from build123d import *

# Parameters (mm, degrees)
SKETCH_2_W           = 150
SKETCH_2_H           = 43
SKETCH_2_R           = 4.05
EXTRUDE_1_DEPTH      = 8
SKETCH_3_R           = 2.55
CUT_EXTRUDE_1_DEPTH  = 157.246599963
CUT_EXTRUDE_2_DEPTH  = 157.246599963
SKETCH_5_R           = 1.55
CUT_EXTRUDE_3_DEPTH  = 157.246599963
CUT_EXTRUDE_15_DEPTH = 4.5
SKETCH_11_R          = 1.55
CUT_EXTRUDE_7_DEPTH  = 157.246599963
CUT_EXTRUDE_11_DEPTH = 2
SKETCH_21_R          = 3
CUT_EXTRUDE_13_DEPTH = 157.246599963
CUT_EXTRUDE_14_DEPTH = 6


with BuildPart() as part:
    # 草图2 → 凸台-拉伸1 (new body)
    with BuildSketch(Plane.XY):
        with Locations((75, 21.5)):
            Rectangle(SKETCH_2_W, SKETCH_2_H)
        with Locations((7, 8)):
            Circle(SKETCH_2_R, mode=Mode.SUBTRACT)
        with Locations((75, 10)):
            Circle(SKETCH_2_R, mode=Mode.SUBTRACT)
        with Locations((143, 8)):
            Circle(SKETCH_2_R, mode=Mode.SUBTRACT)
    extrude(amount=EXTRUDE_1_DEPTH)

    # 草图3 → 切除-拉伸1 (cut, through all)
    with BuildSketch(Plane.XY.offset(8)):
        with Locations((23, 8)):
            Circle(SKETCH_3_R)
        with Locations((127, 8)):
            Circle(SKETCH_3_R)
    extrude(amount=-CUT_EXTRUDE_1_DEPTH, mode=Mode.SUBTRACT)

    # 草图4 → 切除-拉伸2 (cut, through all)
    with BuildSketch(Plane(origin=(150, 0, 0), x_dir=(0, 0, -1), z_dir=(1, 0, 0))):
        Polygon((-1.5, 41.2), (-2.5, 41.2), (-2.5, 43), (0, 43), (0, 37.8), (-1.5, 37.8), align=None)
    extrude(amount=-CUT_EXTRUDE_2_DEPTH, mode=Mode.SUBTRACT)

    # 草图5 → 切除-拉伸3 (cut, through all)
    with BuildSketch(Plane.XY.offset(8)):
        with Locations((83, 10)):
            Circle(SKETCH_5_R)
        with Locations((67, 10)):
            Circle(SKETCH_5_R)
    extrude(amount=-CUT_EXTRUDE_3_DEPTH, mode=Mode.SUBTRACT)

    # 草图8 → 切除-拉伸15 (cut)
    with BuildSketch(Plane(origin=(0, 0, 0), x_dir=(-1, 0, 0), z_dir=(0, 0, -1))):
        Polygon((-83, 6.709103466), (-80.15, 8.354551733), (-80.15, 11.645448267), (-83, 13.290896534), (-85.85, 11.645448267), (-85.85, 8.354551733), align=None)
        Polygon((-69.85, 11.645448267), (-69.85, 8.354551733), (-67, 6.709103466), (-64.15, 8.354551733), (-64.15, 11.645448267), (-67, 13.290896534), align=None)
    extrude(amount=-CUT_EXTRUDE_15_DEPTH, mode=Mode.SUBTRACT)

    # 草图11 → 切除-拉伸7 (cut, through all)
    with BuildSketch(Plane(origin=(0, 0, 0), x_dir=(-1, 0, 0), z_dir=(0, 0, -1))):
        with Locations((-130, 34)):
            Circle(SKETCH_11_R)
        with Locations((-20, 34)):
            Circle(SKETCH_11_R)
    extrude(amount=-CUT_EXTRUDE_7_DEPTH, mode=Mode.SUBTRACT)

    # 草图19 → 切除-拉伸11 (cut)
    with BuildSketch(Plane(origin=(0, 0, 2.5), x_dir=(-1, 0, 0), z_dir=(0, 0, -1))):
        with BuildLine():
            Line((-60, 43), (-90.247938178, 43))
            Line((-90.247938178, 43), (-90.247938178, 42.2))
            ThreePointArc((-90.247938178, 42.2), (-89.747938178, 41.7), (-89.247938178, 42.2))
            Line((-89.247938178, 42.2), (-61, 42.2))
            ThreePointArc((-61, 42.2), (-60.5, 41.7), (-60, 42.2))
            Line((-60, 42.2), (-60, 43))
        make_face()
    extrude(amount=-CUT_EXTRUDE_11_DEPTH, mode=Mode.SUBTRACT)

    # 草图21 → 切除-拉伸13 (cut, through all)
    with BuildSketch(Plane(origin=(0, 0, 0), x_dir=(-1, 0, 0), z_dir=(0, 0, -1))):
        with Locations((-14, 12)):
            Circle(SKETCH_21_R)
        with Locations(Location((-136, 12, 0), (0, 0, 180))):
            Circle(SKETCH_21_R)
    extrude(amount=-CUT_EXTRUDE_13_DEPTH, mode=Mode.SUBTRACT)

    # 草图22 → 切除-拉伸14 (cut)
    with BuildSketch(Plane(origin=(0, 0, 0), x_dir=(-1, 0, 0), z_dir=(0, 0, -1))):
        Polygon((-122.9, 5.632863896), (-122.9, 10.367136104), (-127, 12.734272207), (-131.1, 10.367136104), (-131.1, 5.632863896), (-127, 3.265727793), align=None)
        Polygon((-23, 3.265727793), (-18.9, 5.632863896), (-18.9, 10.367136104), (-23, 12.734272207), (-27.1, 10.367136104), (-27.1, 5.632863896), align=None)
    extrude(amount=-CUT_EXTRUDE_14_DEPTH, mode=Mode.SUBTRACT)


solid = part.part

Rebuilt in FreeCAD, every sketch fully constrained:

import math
import FreeCAD as App
import Part
import Sketcher
from FreeCAD import Vector
Q = App.Units.Quantity


def add_polygon(sketch, points):
    """Adds a closed chain of lines whose ends are joined by coincident constraints."""
    first, n = sketch.GeometryCount, len(points)
    for a, b in zip(points, points[1:] + points[:1]):
        sketch.addGeometry(Part.LineSegment(App.Vector(*a, 0), App.Vector(*b, 0)), False)
    for i in range(n):
        sketch.addConstraint(Sketcher.Constraint("Coincident", first + i, 2, first + (i + 1) % n, 1))

doc = App.newDocument("Part")
body = doc.addObject("PartDesign::Body", "Body")

# Sketch on XY plane
sketch1 = body.newObject("Sketcher::SketchObject", "Sketch")
sketch1.AttachmentSupport = (doc.getObject("XY_Plane"), [""])
sketch1.MapMode = "FlatFace"
add_polygon(sketch1, [(0, 43), (0, 0), (150, 0), (150, 43)])  # lines 0-3
sketch1.addGeometry(Part.Circle(Vector(7, 8, 0), Vector(0, 0, 1), 4.05), False)  # 4
sketch1.addGeometry(Part.Circle(Vector(143, 8, 0), Vector(0, 0, 1), 4.05), False)  # 5
sketch1.addGeometry(Part.Circle(Vector(75, 10, 0), Vector(0, 0, 1), 4.05), False)  # 6
sketch1.addConstraint([
    Sketcher.Constraint("Vertical", 0),
    Sketcher.Constraint("Horizontal", 1),
    Sketcher.Constraint("Vertical", 2),
    Sketcher.Constraint("Horizontal", 3),
    Sketcher.Constraint("Coincident", 0, 2, -1, 1),
    Sketcher.Constraint("Equal", 4, 5),
    Sketcher.Constraint("Equal", 5, 6),
    Sketcher.Constraint("Horizontal", 4, 3, 5, 3),
    Sketcher.Constraint("Diameter", 4, 8.1),
    Sketcher.Constraint("DistanceX", 1, 1, 1, 2, 150.0),
    Sketcher.Constraint("DistanceY", 0, 2, 0, 1, 43.0),
    Sketcher.Constraint("DistanceX", -1, 1, 4, 3, 7.0),
    Sketcher.Constraint("DistanceY", -1, 1, 4, 3, 8.0),
    Sketcher.Constraint("DistanceX", -1, 1, 5, 3, 143.0),
    Sketcher.Constraint("DistanceX", -1, 1, 6, 3, 75.0),
    Sketcher.Constraint("DistanceY", -1, 1, 6, 3, 10.0),
])
pad1 = body.newObject("PartDesign::Pad", "Pad")
pad1.Profile = sketch1
pad1.Length = 8

# Sketch on XY plane
sketch2 = body.newObject("Sketcher::SketchObject", "Sketch001")
sketch2.AttachmentSupport = (doc.getObject("XY_Plane"), [""])
sketch2.MapMode = "FlatFace"
sketch2.AttachmentOffset = App.Placement(Vector(0, 0, 8), App.Rotation())
sketch2.addGeometry([
    Part.Circle(Vector(23, 8, 0), Vector(0, 0, 1), 2.55),
    Part.Circle(Vector(127, 8, 0), Vector(0, 0, 1), 2.55),
], False)
sketch2.addConstraint([
    Sketcher.Constraint("Equal", 0, 1),
    Sketcher.Constraint("Horizontal", 0, 3, 1, 3),
    Sketcher.Constraint("Diameter", 0, 5.1),
    Sketcher.Constraint("DistanceX", -1, 1, 0, 3, 23.0),
    Sketcher.Constraint("DistanceY", -1, 1, 0, 3, 8.0),
    Sketcher.Constraint("DistanceX", -1, 1, 1, 3, 127.0),
])
pocket1 = body.newObject("PartDesign::Pocket", "Pocket")
pocket1.Profile = sketch2
pocket1.Type = "ThroughAll"

# Sketch on YZ plane
sketch3 = body.newObject("Sketcher::SketchObject", "Sketch002")
sketch3.AttachmentSupport = (doc.getObject("YZ_Plane"), [""])
sketch3.MapMode = "FlatFace"
sketch3.AttachmentOffset = App.Placement(Vector(0, 0, 150), App.Rotation())
add_polygon(sketch3, [(41.2, 2.5), (41.2, 1.5), (37.8, 1.5), (37.8, 0), (43, 0), (43, 2.5)])  # lines 0-5
sketch3.addConstraint([
    Sketcher.Constraint("Vertical", 0),
    Sketcher.Constraint("Horizontal", 1),
    Sketcher.Constraint("Vertical", 2),
    Sketcher.Constraint("Horizontal", 3),
    Sketcher.Constraint("Vertical", 4),
    Sketcher.Constraint("Horizontal", 5),
    Sketcher.Constraint("PointOnObject", 2, 2, -1),
    Sketcher.Constraint("DistanceY", 0, 2, 0, 1, 1.0),
    Sketcher.Constraint("DistanceX", 1, 2, 1, 1, 3.4),
    Sketcher.Constraint("DistanceX", 3, 1, 3, 2, 5.2),
    Sketcher.Constraint("DistanceY", 2, 2, 2, 1, 1.5),
    Sketcher.Constraint("DistanceX", -1, 1, 3, 2, 43.0),
])
pocket2 = body.newObject("PartDesign::Pocket", "Pocket001")
pocket2.Profile = sketch3
pocket2.Type = "ThroughAll"

# Sketch on XY plane
sketch4 = body.newObject("Sketcher::SketchObject", "Sketch003")
sketch4.AttachmentSupport = (doc.getObject("XY_Plane"), [""])
sketch4.MapMode = "FlatFace"
sketch4.AttachmentOffset = App.Placement(Vector(0, 0, 8), App.Rotation())
sketch4.addGeometry([
    Part.Circle(Vector(83, 10, 0), Vector(0, 0, 1), 1.55),
    Part.Circle(Vector(67, 10, 0), Vector(0, 0, 1), 1.55),
], False)
sketch4.addConstraint([
    Sketcher.Constraint("Equal", 0, 1),
    Sketcher.Constraint("Horizontal", 0, 3, 1, 3),
    Sketcher.Constraint("Diameter", 0, 3.1),
    Sketcher.Constraint("DistanceX", -1, 1, 0, 3, 83.0),
    Sketcher.Constraint("DistanceY", -1, 1, 0, 3, 10.0),
    Sketcher.Constraint("DistanceX", -1, 1, 1, 3, 67.0),
])
pocket3 = body.newObject("PartDesign::Pocket", "Pocket002")
pocket3.Profile = sketch4
pocket3.Type = "ThroughAll"

# Sketch on XY plane
sketch5 = body.newObject("Sketcher::SketchObject", "Sketch004")
sketch5.AttachmentSupport = (doc.getObject("XY_Plane"), [""])
sketch5.MapMode = "FlatFace"
add_polygon(sketch5, [(83, 6.709103), (80.15, 8.354552), (80.15, 11.645448), (83, 13.290897), (85.85, 11.645448), (85.85, 8.354552)])  # lines 0-5
add_polygon(sketch5, [(69.85, 11.645448), (69.85, 8.354552), (67, 6.709103), (64.15, 8.354552), (64.15, 11.645448), (67, 13.290897)])  # lines 6-11
sketch5.addConstraint([
    Sketcher.Constraint("Vertical", 1),
    Sketcher.Constraint("Vertical", 4),
    Sketcher.Constraint("Vertical", 6),
    Sketcher.Constraint("Vertical", 9),
    Sketcher.Constraint("Parallel", 0, 3),
    Sketcher.Constraint("Parallel", 2, 5),
    Sketcher.Constraint("Parallel", 5, 7),
    Sketcher.Constraint("Parallel", 3, 8),
    Sketcher.Constraint("Parallel", 7, 10),
    Sketcher.Constraint("Parallel", 8, 11),
    Sketcher.Constraint("Horizontal", 1, 2, 3, 2),
    Sketcher.Constraint("Horizontal", 0, 2, 4, 2),
    Sketcher.Constraint("Horizontal", 4, 2, 6, 2),
    Sketcher.Constraint("Horizontal", 5, 2, 7, 2),
    Sketcher.Constraint("Horizontal", 6, 2, 8, 2),
    Sketcher.Constraint("Horizontal", 3, 2, 9, 2),
    Sketcher.Constraint("Horizontal", 2, 2, 10, 2),
    Sketcher.Constraint("Vertical", 2, 2, 5, 2),
    Sketcher.Constraint("Angle", 0, Q("150 deg")),
    Sketcher.Constraint("DistanceX", -1, 1, 2, 2, 83.0),
    Sketcher.Constraint("DistanceX", -1, 1, 7, 2, 67.0),
    Sketcher.Constraint("DistanceX", 1, 2, 3, 2, 5.7),
    Sketcher.Constraint("DistanceY", 1, 1, 1, 2, 3.290897),
    Sketcher.Constraint("DistanceY", -1, 1, 0, 2, 8.354552),
])
pocket4 = body.newObject("PartDesign::Pocket", "Pocket003")
pocket4.Profile = sketch5
pocket4.Length = 4.5
pocket4.Reversed = True

# Sketch on XY plane
sketch6 = body.newObject("Sketcher::SketchObject", "Sketch005")
sketch6.AttachmentSupport = (doc.getObject("XY_Plane"), [""])
sketch6.MapMode = "FlatFace"
sketch6.addGeometry([
    Part.Circle(Vector(130, 34, 0), Vector(0, 0, 1), 1.55),
    Part.Circle(Vector(20, 34, 0), Vector(0, 0, 1), 1.55),
], False)
sketch6.addConstraint([
    Sketcher.Constraint("Equal", 0, 1),
    Sketcher.Constraint("Horizontal", 0, 3, 1, 3),
    Sketcher.Constraint("Diameter", 0, 3.1),
    Sketcher.Constraint("DistanceX", -1, 1, 0, 3, 130.0),
    Sketcher.Constraint("DistanceY", -1, 1, 0, 3, 34.0),
    Sketcher.Constraint("DistanceX", -1, 1, 1, 3, 20.0),
])
pocket5 = body.newObject("PartDesign::Pocket", "Pocket004")
pocket5.Profile = sketch6
pocket5.Type = "ThroughAll"
pocket5.Reversed = True

# Sketch on XY plane
sketch7 = body.newObject("Sketcher::SketchObject", "Sketch006")
sketch7.AttachmentSupport = (doc.getObject("XY_Plane"), [""])
sketch7.MapMode = "FlatFace"
sketch7.AttachmentOffset = App.Placement(Vector(0, 0, 2.5), App.Rotation())
sketch7.addGeometry([
    Part.LineSegment(Vector(60, 43, 0), Vector(90.247938, 43, 0)),  # 0
    Part.LineSegment(Vector(90.247938, 43, 0), Vector(90.247938, 42.2, 0)),  # 1
    Part.ArcOfCircle(Part.Circle(Vector(89.747938, 42.2, 0), Vector(0, 0, 1), 0.5), math.radians(180), math.radians(360)),  # 2
    Part.LineSegment(Vector(89.247938, 42.2, 0), Vector(61, 42.2, 0)),  # 3
    Part.ArcOfCircle(Part.Circle(Vector(60.5, 42.2, 0), Vector(0, 0, 1), 0.5), math.radians(180), math.radians(360)),  # 4
    Part.LineSegment(Vector(60, 42.2, 0), Vector(60, 43, 0)),  # 5
], False)
sketch7.addConstraint([
    Sketcher.Constraint("Coincident", 0, 2, 1, 1),
    Sketcher.Constraint("Tangent", 1, 2, 2, 2),
    Sketcher.Constraint("Coincident", 2, 1, 3, 1),
    Sketcher.Constraint("Coincident", 3, 2, 4, 2),
    Sketcher.Constraint("Tangent", 4, 1, 5, 1),
    Sketcher.Constraint("Coincident", 5, 2, 0, 1),
    Sketcher.Constraint("Horizontal", 0),
    Sketcher.Constraint("Vertical", 1),
    Sketcher.Constraint("Horizontal", 3),
    Sketcher.Constraint("Vertical", 5),
    Sketcher.Constraint("Equal", 2, 4),
    Sketcher.Constraint("Horizontal", 2, 3, 4, 3),
    Sketcher.Constraint("Horizontal", 1, 2, 2, 1),
    Sketcher.Constraint("Radius", 2, 0.5),
    Sketcher.Constraint("DistanceY", 1, 2, 1, 1, 0.8),
    Sketcher.Constraint("DistanceY", -1, 1, 0, 2, 43.0),
    Sketcher.Constraint("DistanceX", -1, 1, 3, 2, 61.0),
    Sketcher.Constraint("DistanceX", 0, 1, 0, 2, 30.247938),
])
pocket6 = body.newObject("PartDesign::Pocket", "Pocket005")
pocket6.Profile = sketch7
pocket6.Length = 2
pocket6.Reversed = True

# Sketch on XY plane
sketch8 = body.newObject("Sketcher::SketchObject", "Sketch007")
sketch8.AttachmentSupport = (doc.getObject("XY_Plane"), [""])
sketch8.MapMode = "FlatFace"
sketch8.addGeometry([
    Part.Circle(Vector(14, 12, 0), Vector(0, 0, 1), 3),
    Part.Circle(Vector(136, 12, 0), Vector(0, 0, 1), 3),
], False)
sketch8.addConstraint([
    Sketcher.Constraint("Equal", 0, 1),
    Sketcher.Constraint("Horizontal", 0, 3, 1, 3),
    Sketcher.Constraint("Diameter", 0, 6.0),
    Sketcher.Constraint("DistanceX", -1, 1, 0, 3, 14.0),
    Sketcher.Constraint("DistanceY", -1, 1, 0, 3, 12.0),
    Sketcher.Constraint("DistanceX", -1, 1, 1, 3, 136.0),
])
pocket7 = body.newObject("PartDesign::Pocket", "Pocket006")
pocket7.Profile = sketch8
pocket7.Type = "ThroughAll"
pocket7.Reversed = True

# Sketch on XY plane
sketch9 = body.newObject("Sketcher::SketchObject", "Sketch008")
sketch9.AttachmentSupport = (doc.getObject("XY_Plane"), [""])
sketch9.MapMode = "FlatFace"
add_polygon(sketch9, [(122.9, 5.632864), (122.9, 10.367136), (127, 12.734272), (131.1, 10.367136), (131.1, 5.632864), (127, 3.265728)])  # lines 0-5
add_polygon(sketch9, [(23, 3.265728), (18.9, 5.632864), (18.9, 10.367136), (23, 12.734272), (27.1, 10.367136), (27.1, 5.632864)])  # lines 6-11
sketch9.addConstraint([
    Sketcher.Constraint("Vertical", 0),
    Sketcher.Constraint("Vertical", 3),
    Sketcher.Constraint("Vertical", 7),
    Sketcher.Constraint("Vertical", 10),
    Sketcher.Constraint("Parallel", 1, 4),
    Sketcher.Constraint("Parallel", 2, 5),
    Sketcher.Constraint("Parallel", 5, 6),
    Sketcher.Constraint("Parallel", 4, 8),
    Sketcher.Constraint("Parallel", 6, 9),
    Sketcher.Constraint("Parallel", 8, 11),
    Sketcher.Constraint("Horizontal", 0, 2, 2, 2),
    Sketcher.Constraint("Horizontal", 3, 2, 5, 2),
    Sketcher.Constraint("Horizontal", 5, 2, 6, 2),
    Sketcher.Constraint("Horizontal", 2, 2, 7, 2),
    Sketcher.Constraint("Horizontal", 1, 2, 8, 2),
    Sketcher.Constraint("Horizontal", 7, 2, 9, 2),
    Sketcher.Constraint("Horizontal", 6, 2, 10, 2),
    Sketcher.Constraint("Vertical", 1, 2, 4, 2),
    Sketcher.Constraint("Angle", 1, Q("30 deg")),
    Sketcher.Constraint("DistanceX", -1, 1, 1, 2, 127.0),
    Sketcher.Constraint("DistanceX", -1, 1, 8, 2, 23.0),
    Sketcher.Constraint("DistanceX", -1, 1, 0, 2, 122.9),
    Sketcher.Constraint("DistanceY", 0, 1, 0, 2, 4.734272),
    Sketcher.Constraint("DistanceY", -1, 1, 0, 2, 10.367136),
])
pocket8 = body.newObject("PartDesign::Pocket", "Pocket007")
pocket8.Profile = sketch9
pocket8.Length = 6
pocket8.Reversed = True

doc.recompute()
